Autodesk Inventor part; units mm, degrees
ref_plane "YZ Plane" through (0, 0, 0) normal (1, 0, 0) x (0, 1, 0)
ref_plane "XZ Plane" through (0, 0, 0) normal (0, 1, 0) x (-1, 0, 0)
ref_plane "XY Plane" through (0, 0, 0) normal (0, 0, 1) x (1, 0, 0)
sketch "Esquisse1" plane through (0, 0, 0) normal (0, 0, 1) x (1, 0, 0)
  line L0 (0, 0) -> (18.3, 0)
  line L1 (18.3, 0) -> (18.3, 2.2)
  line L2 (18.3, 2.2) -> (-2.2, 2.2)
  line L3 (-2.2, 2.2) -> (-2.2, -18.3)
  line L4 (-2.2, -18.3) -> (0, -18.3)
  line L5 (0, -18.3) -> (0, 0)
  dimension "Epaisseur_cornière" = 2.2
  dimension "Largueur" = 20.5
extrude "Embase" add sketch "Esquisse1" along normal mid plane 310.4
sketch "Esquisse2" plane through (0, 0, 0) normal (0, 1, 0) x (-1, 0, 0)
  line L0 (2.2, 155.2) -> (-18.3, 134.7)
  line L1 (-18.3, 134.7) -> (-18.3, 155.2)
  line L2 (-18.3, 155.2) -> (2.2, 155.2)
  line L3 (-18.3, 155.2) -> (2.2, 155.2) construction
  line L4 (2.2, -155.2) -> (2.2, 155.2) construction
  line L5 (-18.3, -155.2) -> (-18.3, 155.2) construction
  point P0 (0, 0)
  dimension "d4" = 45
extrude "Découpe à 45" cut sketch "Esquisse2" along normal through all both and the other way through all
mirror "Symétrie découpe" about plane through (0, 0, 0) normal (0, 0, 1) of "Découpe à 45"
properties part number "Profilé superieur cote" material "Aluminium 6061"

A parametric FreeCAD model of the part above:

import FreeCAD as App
import Part
import Sketcher
from FreeCAD import Vector

doc = App.newDocument("Part")
body = doc.addObject("PartDesign::Body", "Body")

sketch1 = body.newObject("Sketcher::SketchObject", "Sketch")
sketch1.AttachmentSupport = (doc.getObject("XY_Plane"), [""])
sketch1.MapMode = "FlatFace"
sketch1.addGeometry(Part.LineSegment(Vector(0, -18.3, 0), Vector(0, 0, 0)), False)
sketch1.addGeometry(Part.LineSegment(Vector(0, 0, 0), Vector(18.3, 0, 0)), False)
sketch1.addGeometry(Part.LineSegment(Vector(18.3, 0, 0), Vector(18.3, 2.2, 0)), False)
sketch1.addGeometry(Part.LineSegment(Vector(18.3, 2.2, 0), Vector(-2.2, 2.2, 0)), False)
sketch1.addGeometry(Part.LineSegment(Vector(-2.2, 2.2, 0), Vector(-2.2, -18.3, 0)), False)
sketch1.addGeometry(Part.LineSegment(Vector(-2.2, -18.3, 0), Vector(0, -18.3, 0)), False)
sketch1.addConstraint(Sketcher.Constraint("Coincident", 0, 2, 1, 1))
sketch1.addConstraint(Sketcher.Constraint("Coincident", 1, 2, 2, 1))
sketch1.addConstraint(Sketcher.Constraint("Coincident", 2, 2, 3, 1))
sketch1.addConstraint(Sketcher.Constraint("Coincident", 3, 2, 4, 1))
sketch1.addConstraint(Sketcher.Constraint("Coincident", 4, 2, 5, 1))
sketch1.addConstraint(Sketcher.Constraint("Coincident", 5, 2, 0, 1))
sketch1.addConstraint(Sketcher.Constraint("Vertical", 0))
sketch1.addConstraint(Sketcher.Constraint("Horizontal", 1))
sketch1.addConstraint(Sketcher.Constraint("Vertical", 2))
sketch1.addConstraint(Sketcher.Constraint("Horizontal", 3))
sketch1.addConstraint(Sketcher.Constraint("Vertical", 4))
sketch1.addConstraint(Sketcher.Constraint("Horizontal", 5))
sketch1.addConstraint(Sketcher.Constraint("Coincident", 0, 2, -1, 1))
sketch1.addConstraint(Sketcher.Constraint("Equal", 1, 0))
sketch1.addConstraint(Sketcher.Constraint("Equal", 5, 2))
sketch1.addConstraint(Sketcher.Constraint("DistanceX", 3, 2, 3, 1, 20.5))
sketch1.addConstraint(Sketcher.Constraint("DistanceX", 5, 1, 5, 2, 2.2))
pad1 = body.newObject("PartDesign::Pad", "Pad")
pad1.Profile = sketch1
pad1.Length = 310.4
pad1.Midplane = True

sketch2 = body.newObject("Sketcher::SketchObject", "Sketch001")
sketch2.AttachmentSupport = (doc.getObject("XZ_Plane"), [""])
sketch2.MapMode = "FlatFace"
sketch2.addGeometry(Part.LineSegment(Vector(18, 135, 0), Vector(-2, 155, 0)), False)
sketch2.addGeometry(Part.LineSegment(Vector(-2, 155, 0), Vector(18, 155, 0)), False)
sketch2.addGeometry(Part.LineSegment(Vector(18, 155, 0), Vector(18, 135, 0)), False)
sketch2.addConstraint(Sketcher.Constraint("Coincident", 0, 2, 1, 1))
sketch2.addConstraint(Sketcher.Constraint("Coincident", 1, 2, 2, 1))
sketch2.addConstraint(Sketcher.Constraint("Coincident", 2, 2, 0, 1))
sketch2.addConstraint(Sketcher.Constraint("Horizontal", 1))
sketch2.addConstraint(Sketcher.Constraint("Vertical", 2))
sketch2.addConstraint(Sketcher.Constraint("Equal", 1, 2))
sketch2.addConstraint(Sketcher.Constraint("DistanceX", 1, 1, 1, 2, 20.5))
sketch2.addConstraint(Sketcher.Constraint("DistanceX", 0, 2, -1, 1, 2.2))
sketch2.addConstraint(Sketcher.Constraint("DistanceY", -1, 1, 0, 2, 155.2))
pocket1 = body.newObject("PartDesign::Pocket", "Pocket")
pocket1.Profile = sketch2
pocket1.Type = "ThroughAll"
pocket1.Midplane = True
doc.recompute()

mirrored = body.newObject("PartDesign::Mirrored", "Mirrored")
mirrored.Originals = [pocket1]
mirrored.MirrorPlane = (doc.getObject("XY_Plane"), [""])
body.Tip = mirrored

doc.recompute()
